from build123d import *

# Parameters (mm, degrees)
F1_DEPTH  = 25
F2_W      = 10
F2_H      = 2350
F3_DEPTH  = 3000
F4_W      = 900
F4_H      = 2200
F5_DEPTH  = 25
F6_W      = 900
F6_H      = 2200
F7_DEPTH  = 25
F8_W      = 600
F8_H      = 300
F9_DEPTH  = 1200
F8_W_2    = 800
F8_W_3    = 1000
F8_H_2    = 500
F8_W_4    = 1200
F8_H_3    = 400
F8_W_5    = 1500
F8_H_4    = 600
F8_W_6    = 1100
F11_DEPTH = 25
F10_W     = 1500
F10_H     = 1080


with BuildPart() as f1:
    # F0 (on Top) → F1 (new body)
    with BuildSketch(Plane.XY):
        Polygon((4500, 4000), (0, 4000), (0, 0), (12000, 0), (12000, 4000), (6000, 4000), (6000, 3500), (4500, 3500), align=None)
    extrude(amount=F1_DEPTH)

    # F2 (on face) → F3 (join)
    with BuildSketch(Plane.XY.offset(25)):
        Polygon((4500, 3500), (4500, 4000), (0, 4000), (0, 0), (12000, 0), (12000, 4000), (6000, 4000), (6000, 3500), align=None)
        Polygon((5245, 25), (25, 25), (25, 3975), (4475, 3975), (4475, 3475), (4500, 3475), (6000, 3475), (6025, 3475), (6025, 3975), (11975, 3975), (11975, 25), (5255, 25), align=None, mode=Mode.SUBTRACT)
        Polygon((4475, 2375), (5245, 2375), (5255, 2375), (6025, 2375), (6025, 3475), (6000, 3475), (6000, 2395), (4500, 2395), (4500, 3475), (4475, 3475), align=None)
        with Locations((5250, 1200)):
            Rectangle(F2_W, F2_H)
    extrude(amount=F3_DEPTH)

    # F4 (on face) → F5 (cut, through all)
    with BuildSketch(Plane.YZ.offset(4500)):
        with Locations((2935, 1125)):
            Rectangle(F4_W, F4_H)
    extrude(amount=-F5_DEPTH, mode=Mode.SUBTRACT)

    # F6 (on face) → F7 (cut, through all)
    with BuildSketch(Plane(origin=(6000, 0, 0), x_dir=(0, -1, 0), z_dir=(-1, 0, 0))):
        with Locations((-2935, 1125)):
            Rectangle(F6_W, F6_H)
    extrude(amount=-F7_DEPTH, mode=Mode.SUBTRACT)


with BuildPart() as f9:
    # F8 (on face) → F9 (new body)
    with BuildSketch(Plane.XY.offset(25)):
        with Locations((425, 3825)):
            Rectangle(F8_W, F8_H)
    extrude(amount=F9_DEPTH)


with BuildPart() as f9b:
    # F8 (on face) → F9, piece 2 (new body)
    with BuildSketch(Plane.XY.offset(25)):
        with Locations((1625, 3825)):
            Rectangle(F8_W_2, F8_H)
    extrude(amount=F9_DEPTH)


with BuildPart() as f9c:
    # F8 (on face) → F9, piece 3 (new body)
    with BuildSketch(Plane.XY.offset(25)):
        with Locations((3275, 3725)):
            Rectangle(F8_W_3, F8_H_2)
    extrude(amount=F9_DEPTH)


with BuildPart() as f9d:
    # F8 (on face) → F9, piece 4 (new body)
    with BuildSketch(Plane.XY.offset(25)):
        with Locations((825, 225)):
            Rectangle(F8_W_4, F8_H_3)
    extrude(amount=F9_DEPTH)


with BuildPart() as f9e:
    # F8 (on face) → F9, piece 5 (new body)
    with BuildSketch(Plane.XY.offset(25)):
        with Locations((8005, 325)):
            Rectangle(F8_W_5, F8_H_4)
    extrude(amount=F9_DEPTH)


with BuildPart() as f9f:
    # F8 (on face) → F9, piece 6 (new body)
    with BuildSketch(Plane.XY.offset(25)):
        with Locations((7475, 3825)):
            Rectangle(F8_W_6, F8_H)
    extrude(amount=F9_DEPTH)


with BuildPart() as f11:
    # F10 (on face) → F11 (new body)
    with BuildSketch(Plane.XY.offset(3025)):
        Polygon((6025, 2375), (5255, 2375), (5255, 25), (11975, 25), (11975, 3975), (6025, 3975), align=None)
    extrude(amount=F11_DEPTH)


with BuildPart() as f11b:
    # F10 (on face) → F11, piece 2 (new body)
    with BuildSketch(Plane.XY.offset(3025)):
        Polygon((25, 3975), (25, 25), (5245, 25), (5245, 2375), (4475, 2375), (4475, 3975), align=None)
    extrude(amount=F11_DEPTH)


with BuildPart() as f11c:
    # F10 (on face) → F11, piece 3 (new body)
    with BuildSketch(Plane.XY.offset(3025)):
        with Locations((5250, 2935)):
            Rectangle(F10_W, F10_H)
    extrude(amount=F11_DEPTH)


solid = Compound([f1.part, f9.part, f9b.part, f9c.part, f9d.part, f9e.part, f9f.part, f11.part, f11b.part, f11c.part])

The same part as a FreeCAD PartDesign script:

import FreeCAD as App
import Part
import Sketcher

V = App.Vector
Q = App.Units.Quantity


def add_polygon(sketch, points):
    """Adds a closed chain of lines whose ends are joined by coincident constraints."""
    first, n = sketch.GeometryCount, len(points)
    for a, b in zip(points, points[1:] + points[:1]):
        sketch.addGeometry(Part.LineSegment(App.Vector(*a, 0), App.Vector(*b, 0)), False)
    for i in range(n):
        sketch.addConstraint(Sketcher.Constraint("Coincident", first + i, 2, first + (i + 1) % n, 1))

doc = App.newDocument("Part")
body = doc.addObject("PartDesign::Body", "Body")

sketch1 = body.newObject("Sketcher::SketchObject", "Sketch")
sketch1.AttachmentSupport = (doc.getObject("XY_Plane"), [""])
sketch1.MapMode = "FlatFace"
add_polygon(sketch1, [(4500, 4000), (0, 4000), (0, 0), (12000, 0), (12000, 4000), (6000, 4000), (6000, 3500), (4500, 3500)])
sketch1.addConstraint(Sketcher.Constraint("Horizontal", 0))
sketch1.addConstraint(Sketcher.Constraint("Vertical", 1))
sketch1.addConstraint(Sketcher.Constraint("Horizontal", 2))
sketch1.addConstraint(Sketcher.Constraint("Vertical", 3))
sketch1.addConstraint(Sketcher.Constraint("Horizontal", 4))
sketch1.addConstraint(Sketcher.Constraint("Vertical", 5))
sketch1.addConstraint(Sketcher.Constraint("Horizontal", 6))
sketch1.addConstraint(Sketcher.Constraint("Vertical", 7))
sketch1.addConstraint(Sketcher.Constraint("Coincident", 1, 2, -1, 1))
sketch1.addConstraint(Sketcher.Constraint("Horizontal", 0, 2, 3, 2))
sketch1.addConstraint(Sketcher.Constraint("DistanceX", 0, 2, 0, 1, Q("4500 mm")))
sketch1.addConstraint(Sketcher.Constraint("DistanceX", 2, 1, 2, 2, Q("12000 mm")))
sketch1.addConstraint(Sketcher.Constraint("DistanceX", 4, 2, 4, 1, Q("6000 mm")))
sketch1.addConstraint(Sketcher.Constraint("DistanceY", 1, 2, 1, 1, Q("4000 mm")))
sketch1.addConstraint(Sketcher.Constraint("DistanceY", 5, 2, 5, 1, Q("500 mm")))
pad1 = body.newObject("PartDesign::Pad", "Pad")
pad1.Profile = sketch1
pad1.Length = 25

sketch2 = body.newObject("Sketcher::SketchObject", "Sketch001")
sketch2.AttachmentSupport = (doc.getObject("XY_Plane"), [""])
sketch2.MapMode = "FlatFace"
sketch2.AttachmentOffset = App.Placement(V(0, 0, 25), App.Rotation())
add_polygon(sketch2, [(4500, 3500), (4500, 4000), (0, 4000), (0, 0), (12000, 0), (12000, 4000), (6000, 4000), (6000, 3500)])
add_polygon(sketch2, [(11975, 25), (5255, 25), (5255, 2375), (6025, 2375), (6025, 3975), (11975, 3975)])
add_polygon(sketch2, [(5245, 25), (25, 25), (25, 3975), (4475, 3975), (4475, 2375), (5245, 2375)])
add_polygon(sketch2, [(4500, 3475), (6000, 3475), (6000, 2395), (4500, 2395)])
sketch2.addConstraint(Sketcher.Constraint("Vertical", 0))
sketch2.addConstraint(Sketcher.Constraint("Horizontal", 1))
sketch2.addConstraint(Sketcher.Constraint("Vertical", 2))
sketch2.addConstraint(Sketcher.Constraint("Horizontal", 3))
sketch2.addConstraint(Sketcher.Constraint("Vertical", 4))
sketch2.addConstraint(Sketcher.Constraint("Horizontal", 5))
sketch2.addConstraint(Sketcher.Constraint("Vertical", 6))
sketch2.addConstraint(Sketcher.Constraint("Horizontal", 7))
sketch2.addConstraint(Sketcher.Constraint("Horizontal", 8))
sketch2.addConstraint(Sketcher.Constraint("Vertical", 9))
sketch2.addConstraint(Sketcher.Constraint("Horizontal", 10))
sketch2.addConstraint(Sketcher.Constraint("Vertical", 11))
sketch2.addConstraint(Sketcher.Constraint("Horizontal", 12))
sketch2.addConstraint(Sketcher.Constraint("Vertical", 13))
sketch2.addConstraint(Sketcher.Constraint("Horizontal", 14))
sketch2.addConstraint(Sketcher.Constraint("Vertical", 15))
sketch2.addConstraint(Sketcher.Constraint("Horizontal", 16))
sketch2.addConstraint(Sketcher.Constraint("Vertical", 17))
sketch2.addConstraint(Sketcher.Constraint("Horizontal", 18))
sketch2.addConstraint(Sketcher.Constraint("Vertical", 19))
sketch2.addConstraint(Sketcher.Constraint("Horizontal", 20))
sketch2.addConstraint(Sketcher.Constraint("Vertical", 21))
sketch2.addConstraint(Sketcher.Constraint("Horizontal", 22))
sketch2.addConstraint(Sketcher.Constraint("Vertical", 23))
sketch2.addConstraint(Sketcher.Constraint("Coincident", 2, 2, -1, 1))
sketch2.addConstraint(Sketcher.Constraint("Horizontal", 1, 2, 4, 2))
sketch2.addConstraint(Sketcher.Constraint("Horizontal", 13, 2, 14, 2))
sketch2.addConstraint(Sketcher.Constraint("Horizontal", 12, 2, 15, 2))
sketch2.addConstraint(Sketcher.Constraint("Horizontal", 10, 2, 17, 2))
sketch2.addConstraint(Sketcher.Constraint("Vertical", 6, 2, 20, 2))
sketch2.addConstraint(Sketcher.Constraint("Vertical", 7, 2, 22, 2))
sketch2.addConstraint(Sketcher.Constraint("Equal", 10, 18))
sketch2.addConstraint(Sketcher.Constraint("DistanceX", 1, 2, 1, 1, Q("4500 mm")))
sketch2.addConstraint(Sketcher.Constraint("DistanceX", 3, 1, 3, 2, Q("12000 mm")))
sketch2.addConstraint(Sketcher.Constraint("DistanceX", 5, 2, 5, 1, Q("6000 mm")))
sketch2.addConstraint(Sketcher.Constraint("DistanceX", 8, 2, 8, 1, Q("6720 mm")))
sketch2.addConstraint(Sketcher.Constraint("DistanceX", 10, 1, 10, 2, Q("770 mm")))
sketch2.addConstraint(Sketcher.Constraint("DistanceX", 14, 2, 14, 1, Q("5220 mm")))
sketch2.addConstraint(Sketcher.Constraint("DistanceY", 0, 1, 0, 2, Q("500 mm")))
sketch2.addConstraint(Sketcher.Constraint("DistanceY", 2, 2, 2, 1, Q("4000 mm")))
sketch2.addConstraint(Sketcher.Constraint("DistanceY", 9, 1, 9, 2, Q("2350 mm")))
sketch2.addConstraint(Sketcher.Constraint("DistanceY", 11, 1, 11, 2, Q("1600 mm")))
sketch2.addConstraint(Sketcher.Constraint("DistanceY", 21, 2, 21, 1, Q("1080 mm")))
sketch2.addConstraint(Sketcher.Constraint("DistanceX", -1, 1, 8, 2, Q("5255 mm")))
sketch2.addConstraint(Sketcher.Constraint("DistanceY", -1, 1, 8, 2, Q("25 mm")))
sketch2.addConstraint(Sketcher.Constraint("DistanceX", -1, 1, 14, 2, Q("25 mm")))
sketch2.addConstraint(Sketcher.Constraint("DistanceY", -1, 1, 20, 2, Q("3475 mm")))
pad2 = body.newObject("PartDesign::Pad", "Pad001")
pad2.Profile = sketch2
pad2.Length = 3000

sketch3 = body.newObject("Sketcher::SketchObject", "Sketch002")
sketch3.AttachmentSupport = (doc.getObject("YZ_Plane"), [""])
sketch3.MapMode = "FlatFace"
sketch3.AttachmentOffset = App.Placement(V(0, 0, 4500), App.Rotation())
add_polygon(sketch3, [(2485, 2225), (2485, 25), (3385, 25), (3385, 2225)])
sketch3.addConstraint(Sketcher.Constraint("Vertical", 0))
sketch3.addConstraint(Sketcher.Constraint("Horizontal", 1))
sketch3.addConstraint(Sketcher.Constraint("Vertical", 2))
sketch3.addConstraint(Sketcher.Constraint("Horizontal", 3))
sketch3.addConstraint(Sketcher.Constraint("DistanceX", 1, 1, 1, 2, Q("900 mm")))
sketch3.addConstraint(Sketcher.Constraint("DistanceY", 0, 2, 0, 1, Q("2200 mm")))
sketch3.addConstraint(Sketcher.Constraint("DistanceX", -1, 1, 0, 2, Q("2485 mm")))
sketch3.addConstraint(Sketcher.Constraint("DistanceY", -1, 1, 0, 2, Q("25 mm")))
pocket1 = body.newObject("PartDesign::Pocket", "Pocket")
pocket1.Profile = sketch3
pocket1.Length = 25

sketch4 = body.newObject("Sketcher::SketchObject", "Sketch003")
sketch4.AttachmentSupport = (doc.getObject("YZ_Plane"), [""])
sketch4.MapMode = "FlatFace"
sketch4.AttachmentOffset = App.Placement(V(0, 0, 6000), App.Rotation())
add_polygon(sketch4, [(3385, 2225), (3385, 25), (2485, 25), (2485, 2225)])
sketch4.addConstraint(Sketcher.Constraint("Vertical", 0))
sketch4.addConstraint(Sketcher.Constraint("Horizontal", 1))
sketch4.addConstraint(Sketcher.Constraint("Vertical", 2))
sketch4.addConstraint(Sketcher.Constraint("Horizontal", 3))
sketch4.addConstraint(Sketcher.Constraint("DistanceX", 1, 2, 1, 1, Q("900 mm")))
sketch4.addConstraint(Sketcher.Constraint("DistanceY", 0, 2, 0, 1, Q("2200 mm")))
sketch4.addConstraint(Sketcher.Constraint("DistanceX", -1, 1, 0, 2, Q("3385 mm")))
sketch4.addConstraint(Sketcher.Constraint("DistanceY", -1, 1, 0, 2, Q("25 mm")))
pocket2 = body.newObject("PartDesign::Pocket", "Pocket001")
pocket2.Profile = sketch4
pocket2.Length = 25
pocket2.Reversed = True
body2 = doc.addObject("PartDesign::Body", "Body001")

sketch5 = body2.newObject("Sketcher::SketchObject", "Sketch004")
sketch5.AttachmentSupport = (doc.getObject("XY_Plane001"), [""])
sketch5.MapMode = "FlatFace"
sketch5.AttachmentOffset = App.Placement(V(0, 0, 25), App.Rotation())
add_polygon(sketch5, [(125, 3975), (125, 3675), (725, 3675), (725, 3975)])
sketch5.addConstraint(Sketcher.Constraint("Vertical", 0))
sketch5.addConstraint(Sketcher.Constraint("Horizontal", 1))
sketch5.addConstraint(Sketcher.Constraint("Vertical", 2))
sketch5.addConstraint(Sketcher.Constraint("Horizontal", 3))
sketch5.addConstraint(Sketcher.Constraint("DistanceX", 1, 1, 1, 2, Q("600 mm")))
sketch5.addConstraint(Sketcher.Constraint("DistanceY", 0, 2, 0, 1, Q("300 mm")))
sketch5.addConstraint(Sketcher.Constraint("DistanceX", -1, 1, 0, 2, Q("125 mm")))
sketch5.addConstraint(Sketcher.Constraint("DistanceY", -1, 1, 0, 2, Q("3675 mm")))
pad3 = body2.newObject("PartDesign::Pad", "Pad002")
pad3.Profile = sketch5
pad3.Length = 1200
body3 = doc.addObject("PartDesign::Body", "Body002")

sketch6 = body3.newObject("Sketcher::SketchObject", "Sketch005")
sketch6.AttachmentSupport = (doc.getObject("XY_Plane002"), [""])
sketch6.MapMode = "FlatFace"
sketch6.AttachmentOffset = App.Placement(V(0, 0, 25), App.Rotation())
add_polygon(sketch6, [(1225, 3975), (1225, 3675), (2025, 3675), (2025, 3975)])
sketch6.addConstraint(Sketcher.Constraint("Vertical", 0))
sketch6.addConstraint(Sketcher.Constraint("Horizontal", 1))
sketch6.addConstraint(Sketcher.Constraint("Vertical", 2))
sketch6.addConstraint(Sketcher.Constraint("Horizontal", 3))
sketch6.addConstraint(Sketcher.Constraint("DistanceX", 1, 1, 1, 2, Q("800 mm")))
sketch6.addConstraint(Sketcher.Constraint("DistanceY", 0, 2, 0, 1, Q("300 mm")))
sketch6.addConstraint(Sketcher.Constraint("DistanceX", -1, 1, 0, 2, Q("1225 mm")))
sketch6.addConstraint(Sketcher.Constraint("DistanceY", -1, 1, 0, 2, Q("3675 mm")))
pad4 = body3.newObject("PartDesign::Pad", "Pad003")
pad4.Profile = sketch6
pad4.Length = 1200
body4 = doc.addObject("PartDesign::Body", "Body003")

sketch7 = body4.newObject("Sketcher::SketchObject", "Sketch006")
sketch7.AttachmentSupport = (doc.getObject("XY_Plane003"), [""])
sketch7.MapMode = "FlatFace"
sketch7.AttachmentOffset = App.Placement(V(0, 0, 25), App.Rotation())
add_polygon(sketch7, [(2775, 3975), (2775, 3475), (3775, 3475), (3775, 3975)])
sketch7.addConstraint(Sketcher.Constraint("Vertical", 0))
sketch7.addConstraint(Sketcher.Constraint("Horizontal", 1))
sketch7.addConstraint(Sketcher.Constraint("Vertical", 2))
sketch7.addConstraint(Sketcher.Constraint("Horizontal", 3))
sketch7.addConstraint(Sketcher.Constraint("DistanceX", 1, 1, 1, 2, Q("1000 mm")))
sketch7.addConstraint(Sketcher.Constraint("DistanceY", 0, 2, 0, 1, Q("500 mm")))
sketch7.addConstraint(Sketcher.Constraint("DistanceX", -1, 1, 0, 2, Q("2775 mm")))
sketch7.addConstraint(Sketcher.Constraint("DistanceY", -1, 1, 0, 2, Q("3475 mm")))
pad5 = body4.newObject("PartDesign::Pad", "Pad004")
pad5.Profile = sketch7
pad5.Length = 1200
body5 = doc.addObject("PartDesign::Body", "Body004")

sketch8 = body5.newObject("Sketcher::SketchObject", "Sketch007")
sketch8.AttachmentSupport = (doc.getObject("XY_Plane004"), [""])
sketch8.MapMode = "FlatFace"
sketch8.AttachmentOffset = App.Placement(V(0, 0, 25), App.Rotation())
add_polygon(sketch8, [(225, 425), (225, 25), (1425, 25), (1425, 425)])
sketch8.addConstraint(Sketcher.Constraint("Vertical", 0))
sketch8.addConstraint(Sketcher.Constraint("Horizontal", 1))
sketch8.addConstraint(Sketcher.Constraint("Vertical", 2))
sketch8.addConstraint(Sketcher.Constraint("Horizontal", 3))
sketch8.addConstraint(Sketcher.Constraint("DistanceX", 1, 1, 1, 2, Q("1200 mm")))
sketch8.addConstraint(Sketcher.Constraint("DistanceY", 0, 2, 0, 1, Q("400 mm")))
sketch8.addConstraint(Sketcher.Constraint("DistanceX", -1, 1, 0, 2, Q("225 mm")))
sketch8.addConstraint(Sketcher.Constraint("DistanceY", -1, 1, 0, 2, Q("25 mm")))
pad6 = body5.newObject("PartDesign::Pad", "Pad005")
pad6.Profile = sketch8
pad6.Length = 1200
body6 = doc.addObject("PartDesign::Body", "Body005")

sketch9 = body6.newObject("Sketcher::SketchObject", "Sketch008")
sketch9.AttachmentSupport = (doc.getObject("XY_Plane005"), [""])
sketch9.MapMode = "FlatFace"
sketch9.AttachmentOffset = App.Placement(V(0, 0, 25), App.Rotation())
add_polygon(sketch9, [(7255, 625), (7255, 25), (8755, 25), (8755, 625)])
sketch9.addConstraint(Sketcher.Constraint("Vertical", 0))
sketch9.addConstraint(Sketcher.Constraint("Horizontal", 1))
sketch9.addConstraint(Sketcher.Constraint("Vertical", 2))
sketch9.addConstraint(Sketcher.Constraint("Horizontal", 3))
sketch9.addConstraint(Sketcher.Constraint("DistanceX", 1, 1, 1, 2, Q("1500 mm")))
sketch9.addConstraint(Sketcher.Constraint("DistanceY", 0, 2, 0, 1, Q("600 mm")))
sketch9.addConstraint(Sketcher.Constraint("DistanceX", -1, 1, 0, 2, Q("7255 mm")))
sketch9.addConstraint(Sketcher.Constraint("DistanceY", -1, 1, 0, 2, Q("25 mm")))
pad7 = body6.newObject("PartDesign::Pad", "Pad006")
pad7.Profile = sketch9
pad7.Length = 1200
body7 = doc.addObject("PartDesign::Body", "Body006")

sketch10 = body7.newObject("Sketcher::SketchObject", "Sketch009")
sketch10.AttachmentSupport = (doc.getObject("XY_Plane006"), [""])
sketch10.MapMode = "FlatFace"
sketch10.AttachmentOffset = App.Placement(V(0, 0, 25), App.Rotation())
add_polygon(sketch10, [(6925, 3975), (6925, 3675), (8025, 3675), (8025, 3975)])
sketch10.addConstraint(Sketcher.Constraint("Vertical", 0))
sketch10.addConstraint(Sketcher.Constraint("Horizontal", 1))
sketch10.addConstraint(Sketcher.Constraint("Vertical", 2))
sketch10.addConstraint(Sketcher.Constraint("Horizontal", 3))
sketch10.addConstraint(Sketcher.Constraint("DistanceX", 1, 1, 1, 2, Q("1100 mm")))
sketch10.addConstraint(Sketcher.Constraint("DistanceY", 0, 2, 0, 1, Q("300 mm")))
sketch10.addConstraint(Sketcher.Constraint("DistanceX", -1, 1, 0, 2, Q("6925 mm")))
sketch10.addConstraint(Sketcher.Constraint("DistanceY", -1, 1, 0, 2, Q("3675 mm")))
pad8 = body7.newObject("PartDesign::Pad", "Pad007")
pad8.Profile = sketch10
pad8.Length = 1200
body8 = doc.addObject("PartDesign::Body", "Body007")

sketch11 = body8.newObject("Sketcher::SketchObject", "Sketch010")
sketch11.AttachmentSupport = (doc.getObject("XY_Plane007"), [""])
sketch11.MapMode = "FlatFace"
sketch11.AttachmentOffset = App.Placement(V(0, 0, 3025), App.Rotation())
add_polygon(sketch11, [(6025, 2375), (5255, 2375), (5255, 25), (11975, 25), (11975, 3975), (6025, 3975)])
sketch11.addConstraint(Sketcher.Constraint("Horizontal", 0))
sketch11.addConstraint(Sketcher.Constraint("Vertical", 1))
sketch11.addConstraint(Sketcher.Constraint("Horizontal", 2))
sketch11.addConstraint(Sketcher.Constraint("Vertical", 3))
sketch11.addConstraint(Sketcher.Constraint("Horizontal", 4))
sketch11.addConstraint(Sketcher.Constraint("Vertical", 5))
sketch11.addConstraint(Sketcher.Constraint("DistanceX", 0, 2, 0, 1, Q("770 mm")))
sketch11.addConstraint(Sketcher.Constraint("DistanceX", 2, 1, 2, 2, Q("6720 mm")))
sketch11.addConstraint(Sketcher.Constraint("DistanceY", 1, 2, 1, 1, Q("2350 mm")))
sketch11.addConstraint(Sketcher.Constraint("DistanceY", 3, 1, 3, 2, Q("3950 mm")))
sketch11.addConstraint(Sketcher.Constraint("DistanceX", -1, 1, 0, 2, Q("5255 mm")))
sketch11.addConstraint(Sketcher.Constraint("DistanceY", -1, 1, 0, 2, Q("2375 mm")))
pad9 = body8.newObject("PartDesign::Pad", "Pad008")
pad9.Profile = sketch11
pad9.Length = 25
body9 = doc.addObject("PartDesign::Body", "Body008")

sketch12 = body9.newObject("Sketcher::SketchObject", "Sketch011")
sketch12.AttachmentSupport = (doc.getObject("XY_Plane008"), [""])
sketch12.MapMode = "FlatFace"
sketch12.AttachmentOffset = App.Placement(V(0, 0, 3025), App.Rotation())
add_polygon(sketch12, [(25, 3975), (25, 25), (5245, 25), (5245, 2375), (4475, 2375), (4475, 3975)])
sketch12.addConstraint(Sketcher.Constraint("Vertical", 0))
sketch12.addConstraint(Sketcher.Constraint("Horizontal", 1))
sketch12.addConstraint(Sketcher.Constraint("Vertical", 2))
sketch12.addConstraint(Sketcher.Constraint("Horizontal", 3))
sketch12.addConstraint(Sketcher.Constraint("Vertical", 4))
sketch12.addConstraint(Sketcher.Constraint("Horizontal", 5))
sketch12.addConstraint(Sketcher.Constraint("DistanceX", 1, 1, 1, 2, Q("5220 mm")))
sketch12.addConstraint(Sketcher.Constraint("DistanceX", 3, 2, 3, 1, Q("770 mm")))
sketch12.addConstraint(Sketcher.Constraint("DistanceY", 0, 2, 0, 1, Q("3950 mm")))
sketch12.addConstraint(Sketcher.Constraint("DistanceY", 2, 1, 2, 2, Q("2350 mm")))
sketch12.addConstraint(Sketcher.Constraint("DistanceX", -1, 1, 0, 2, Q("25 mm")))
sketch12.addConstraint(Sketcher.Constraint("DistanceY", -1, 1, 0, 2, Q("25 mm")))
pad10 = body9.newObject("PartDesign::Pad", "Pad009")
pad10.Profile = sketch12
pad10.Length = 25
body10 = doc.addObject("PartDesign::Body", "Body009")

sketch13 = body10.newObject("Sketcher::SketchObject", "Sketch012")
sketch13.AttachmentSupport = (doc.getObject("XY_Plane009"), [""])
sketch13.MapMode = "FlatFace"
sketch13.AttachmentOffset = App.Placement(V(0, 0, 3025), App.Rotation())
add_polygon(sketch13, [(4500, 3475), (4500, 2395), (6000, 2395), (6000, 3475)])
sketch13.addConstraint(Sketcher.Constraint("Vertical", 0))
sketch13.addConstraint(Sketcher.Constraint("Horizontal", 1))
sketch13.addConstraint(Sketcher.Constraint("Vertical", 2))
sketch13.addConstraint(Sketcher.Constraint("Horizontal", 3))
sketch13.addConstraint(Sketcher.Constraint("DistanceX", 1, 1, 1, 2, Q("1500 mm")))
sketch13.addConstraint(Sketcher.Constraint("DistanceY", 0, 2, 0, 1, Q("1080 mm")))
sketch13.addConstraint(Sketcher.Constraint("DistanceX", -1, 1, 0, 2, Q("4500 mm")))
sketch13.addConstraint(Sketcher.Constraint("DistanceY", -1, 1, 0, 2, Q("2395 mm")))
pad11 = body10.newObject("PartDesign::Pad", "Pad010")
pad11.Profile = sketch13
pad11.Length = 25

doc.recompute()
